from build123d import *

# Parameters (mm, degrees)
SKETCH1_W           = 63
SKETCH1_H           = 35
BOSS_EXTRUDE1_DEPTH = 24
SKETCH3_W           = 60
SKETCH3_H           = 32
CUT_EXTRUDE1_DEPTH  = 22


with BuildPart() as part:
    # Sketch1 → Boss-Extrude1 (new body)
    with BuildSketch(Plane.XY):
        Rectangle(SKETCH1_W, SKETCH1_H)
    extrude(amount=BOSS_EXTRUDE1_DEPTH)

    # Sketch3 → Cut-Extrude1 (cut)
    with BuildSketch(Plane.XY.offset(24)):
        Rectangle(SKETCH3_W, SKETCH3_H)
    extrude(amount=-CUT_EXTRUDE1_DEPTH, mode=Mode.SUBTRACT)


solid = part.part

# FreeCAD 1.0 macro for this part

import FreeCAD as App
import Part
import Sketcher
from FreeCAD import Vector

doc = App.newDocument("Part")
body = doc.addObject("PartDesign::Body", "Body")

sketch1 = body.newObject("Sketcher::SketchObject", "Sketch")
sketch1.AttachmentSupport = (doc.getObject("XY_Plane"), [""])
sketch1.MapMode = "FlatFace"
sketch1.addGeometry([
    Part.LineSegment(Vector(-32, 18, 0), Vector(-32, -18, 0)),
    Part.LineSegment(Vector(-32, -18, 0), Vector(32, -18, 0)),
    Part.LineSegment(Vector(32, -18, 0), Vector(32, 18, 0)),
    Part.LineSegment(Vector(32, 18, 0), Vector(-32, 18, 0)),
], False)
sketch1.addConstraint([
    Sketcher.Constraint("Coincident", 0, 2, 1, 1),
    Sketcher.Constraint("Coincident", 1, 2, 2, 1),
    Sketcher.Constraint("Coincident", 2, 2, 3, 1),
    Sketcher.Constraint("Coincident", 3, 2, 0, 1),
    Sketcher.Constraint("Vertical", 0),
    Sketcher.Constraint("Horizontal", 1),
    Sketcher.Constraint("Vertical", 2),
    Sketcher.Constraint("Horizontal", 3),
    Sketcher.Constraint("Symmetric", 0, 2, 2, 2, -1, 1),
    Sketcher.Constraint("DistanceX", 1, 1, 1, 2, 63.0),
    Sketcher.Constraint("DistanceY", 0, 2, 0, 1, 35.0),
])
pad1 = body.newObject("PartDesign::Pad", "Pad")
pad1.Profile = sketch1
pad1.Length = 24

sketch2 = body.newObject("Sketcher::SketchObject", "Sketch001")
sketch2.AttachmentSupport = (doc.getObject("XY_Plane"), [""])
sketch2.MapMode = "FlatFace"
sketch2.AttachmentOffset = App.Placement(Vector(0, 0, 24), App.Rotation())
sketch2.addGeometry([
    Part.LineSegment(Vector(-30, 16, 0), Vector(-30, -16, 0)),
    Part.LineSegment(Vector(-30, -16, 0), Vector(30, -16, 0)),
    Part.LineSegment(Vector(30, -16, 0), Vector(30, 16, 0)),
    Part.LineSegment(Vector(30, 16, 0), Vector(-30, 16, 0)),
], False)
sketch2.addConstraint([
    Sketcher.Constraint("Coincident", 0, 2, 1, 1),
    Sketcher.Constraint("Coincident", 1, 2, 2, 1),
    Sketcher.Constraint("Coincident", 2, 2, 3, 1),
    Sketcher.Constraint("Coincident", 3, 2, 0, 1),
    Sketcher.Constraint("Vertical", 0),
    Sketcher.Constraint("Horizontal", 1),
    Sketcher.Constraint("Vertical", 2),
    Sketcher.Constraint("Horizontal", 3),
    Sketcher.Constraint("Symmetric", 0, 2, 2, 2, -1, 1),
    Sketcher.Constraint("DistanceX", 1, 1, 1, 2, 60.0),
    Sketcher.Constraint("DistanceY", 0, 2, 0, 1, 32.0),
])
pocket1 = body.newObject("PartDesign::Pocket", "Pocket")
pocket1.Profile = sketch2
pocket1.Length = 22

doc.recompute()
